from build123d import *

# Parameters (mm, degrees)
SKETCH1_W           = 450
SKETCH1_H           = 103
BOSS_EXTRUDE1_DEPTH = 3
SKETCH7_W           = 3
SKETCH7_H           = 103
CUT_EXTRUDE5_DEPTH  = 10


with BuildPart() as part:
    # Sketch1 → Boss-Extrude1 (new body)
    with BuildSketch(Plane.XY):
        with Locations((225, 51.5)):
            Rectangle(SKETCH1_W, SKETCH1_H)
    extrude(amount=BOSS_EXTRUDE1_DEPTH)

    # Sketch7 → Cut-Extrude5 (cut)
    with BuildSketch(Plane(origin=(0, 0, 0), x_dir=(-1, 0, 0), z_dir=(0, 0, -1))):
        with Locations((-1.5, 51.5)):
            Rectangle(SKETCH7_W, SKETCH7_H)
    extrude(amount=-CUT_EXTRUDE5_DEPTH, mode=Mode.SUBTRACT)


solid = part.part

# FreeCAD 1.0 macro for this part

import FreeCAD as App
import Part
import Sketcher
from FreeCAD import Vector


def add_polygon(sketch, points):
    """Adds a closed chain of lines whose ends are joined by coincident constraints."""
    first, n = sketch.GeometryCount, len(points)
    for a, b in zip(points, points[1:] + points[:1]):
        sketch.addGeometry(Part.LineSegment(App.Vector(*a, 0), App.Vector(*b, 0)), False)
    for i in range(n):
        sketch.addConstraint(Sketcher.Constraint("Coincident", first + i, 2, first + (i + 1) % n, 1))

doc = App.newDocument("Part")
body = doc.addObject("PartDesign::Body", "Body")

sketch1 = body.newObject("Sketcher::SketchObject", "Sketch")
sketch1.AttachmentSupport = (doc.getObject("XY_Plane"), [""])
sketch1.MapMode = "FlatFace"
add_polygon(sketch1, [(0, 103), (0, 0), (450, 0), (450, 103)])
sketch1.addConstraint([
    Sketcher.Constraint("Vertical", 0),
    Sketcher.Constraint("Horizontal", 1),
    Sketcher.Constraint("Vertical", 2),
    Sketcher.Constraint("Horizontal", 3),
    Sketcher.Constraint("Coincident", 0, 2, -1, 1),
    Sketcher.Constraint("DistanceX", 1, 1, 1, 2, 450.0),
    Sketcher.Constraint("DistanceY", 0, 2, 0, 1, 103.0),
])
pad1 = body.newObject("PartDesign::Pad", "Pad")
pad1.Profile = sketch1
pad1.Length = 3

sketch2 = body.newObject("Sketcher::SketchObject", "Sketch001")
sketch2.AttachmentSupport = (doc.getObject("XY_Plane"), [""])
sketch2.MapMode = "FlatFace"
add_polygon(sketch2, [(3, 103), (3, 0), (0, 0), (0, 103)])
sketch2.addConstraint([
    Sketcher.Constraint("Vertical", 0),
    Sketcher.Constraint("Horizontal", 1),
    Sketcher.Constraint("Vertical", 2),
    Sketcher.Constraint("Horizontal", 3),
    Sketcher.Constraint("Coincident", 1, 2, -1, 1),
    Sketcher.Constraint("DistanceX", 1, 2, 1, 1, 3.0),
    Sketcher.Constraint("DistanceY", 0, 2, 0, 1, 103.0),
])
pocket1 = body.newObject("PartDesign::Pocket", "Pocket")
pocket1.Profile = sketch2
pocket1.Length = 10
pocket1.Reversed = True

doc.recompute()
